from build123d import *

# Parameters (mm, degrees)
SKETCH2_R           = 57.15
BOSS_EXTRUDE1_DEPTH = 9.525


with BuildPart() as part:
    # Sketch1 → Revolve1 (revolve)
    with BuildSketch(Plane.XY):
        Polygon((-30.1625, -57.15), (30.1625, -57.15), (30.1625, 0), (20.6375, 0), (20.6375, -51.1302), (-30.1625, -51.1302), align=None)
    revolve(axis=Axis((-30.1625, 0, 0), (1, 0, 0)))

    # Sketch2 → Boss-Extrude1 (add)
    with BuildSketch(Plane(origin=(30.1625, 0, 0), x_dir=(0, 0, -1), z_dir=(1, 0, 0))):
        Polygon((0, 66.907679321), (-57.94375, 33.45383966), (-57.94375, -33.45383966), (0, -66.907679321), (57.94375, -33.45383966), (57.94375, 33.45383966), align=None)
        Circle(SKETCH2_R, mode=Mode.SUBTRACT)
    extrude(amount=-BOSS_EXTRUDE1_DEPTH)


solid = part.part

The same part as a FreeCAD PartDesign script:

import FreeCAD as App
import Part
import Sketcher
from FreeCAD import Vector
Q = App.Units.Quantity

doc = App.newDocument("Part")
body = doc.addObject("PartDesign::Body", "Body")

# Sketch on XY plane
sketch1 = body.newObject("Sketcher::SketchObject", "Sketch")
sketch1.AttachmentSupport = (doc.getObject("XY_Plane"), [""])
sketch1.MapMode = "FlatFace"
sketch1.addGeometry(Part.LineSegment(Vector(-30, -57, 0), Vector(30, -57, 0)), False)
sketch1.addGeometry(Part.LineSegment(Vector(30, -57, 0), Vector(30, 0, 0)), False)
sketch1.addGeometry(Part.LineSegment(Vector(30, 0, 0), Vector(21, 0, 0)), False)
sketch1.addGeometry(Part.LineSegment(Vector(21, 0, 0), Vector(21, -51, 0)), False)
sketch1.addGeometry(Part.LineSegment(Vector(21, -51, 0), Vector(-30, -51, 0)), False)
sketch1.addGeometry(Part.LineSegment(Vector(-30, -51, 0), Vector(-30, -57, 0)), False)
sketch1.addConstraint(Sketcher.Constraint("Coincident", 0, 2, 1, 1))
sketch1.addConstraint(Sketcher.Constraint("Coincident", 1, 2, 2, 1))
sketch1.addConstraint(Sketcher.Constraint("Coincident", 2, 2, 3, 1))
sketch1.addConstraint(Sketcher.Constraint("Coincident", 3, 2, 4, 1))
sketch1.addConstraint(Sketcher.Constraint("Coincident", 4, 2, 5, 1))
sketch1.addConstraint(Sketcher.Constraint("Coincident", 5, 2, 0, 1))
sketch1.addConstraint(Sketcher.Constraint("Horizontal", 0))
sketch1.addConstraint(Sketcher.Constraint("Vertical", 1))
sketch1.addConstraint(Sketcher.Constraint("Horizontal", 2))
sketch1.addConstraint(Sketcher.Constraint("Vertical", 3))
sketch1.addConstraint(Sketcher.Constraint("Horizontal", 4))
sketch1.addConstraint(Sketcher.Constraint("Vertical", 5))
sketch1.addConstraint(Sketcher.Constraint("PointOnObject", 1, 2, -1))
sketch1.addConstraint(Sketcher.Constraint("DistanceX", 4, 2, 4, 1, Q("2 in")))
sketch1.addConstraint(Sketcher.Constraint("DistanceY", 1, 1, 1, 2, Q("2.25 in")))
sketch1.addConstraint(Sketcher.Constraint("DistanceX", 0, 1, 0, 2, Q("2.375 in")))
sketch1.addConstraint(Sketcher.Constraint("DistanceY", 3, 2, 3, 1, Q("2.013 in")))
sketch1.addConstraint(Sketcher.Constraint("DistanceX", -1, 1, 0, 2, Q("1.1875 in")))
revolution = body.newObject("PartDesign::Revolution", "Revolution")
revolution.Profile = sketch1
revolution.ReferenceAxis = (sketch1, ["H_Axis"])
revolution.Angle = 360

# Sketch on YZ plane
sketch2 = body.newObject("Sketcher::SketchObject", "Sketch001")
sketch2.AttachmentSupport = (doc.getObject("YZ_Plane"), [""])
sketch2.MapMode = "FlatFace"
sketch2.AttachmentOffset = App.Placement(Vector(0, 0, 1.1875 * 25.4), App.Rotation())
sketch2.addGeometry(Part.LineSegment(Vector(67, 0, 0), Vector(33, 58, 0)), False)
sketch2.addGeometry(Part.LineSegment(Vector(33, 58, 0), Vector(-33, 58, 0)), False)
sketch2.addGeometry(Part.LineSegment(Vector(-33, 58, 0), Vector(-67, 0, 0)), False)
sketch2.addGeometry(Part.LineSegment(Vector(-67, 0, 0), Vector(-33, -58, 0)), False)
sketch2.addGeometry(Part.LineSegment(Vector(-33, -58, 0), Vector(33, -58, 0)), False)
sketch2.addGeometry(Part.LineSegment(Vector(33, -58, 0), Vector(67, 0, 0)), False)
sketch2.addGeometry(Part.Circle(Vector(0, 0, 0), Vector(0, 0, 1), 57), False)
sketch2.addConstraint(Sketcher.Constraint("Coincident", 0, 2, 1, 1))
sketch2.addConstraint(Sketcher.Constraint("Coincident", 1, 2, 2, 1))
sketch2.addConstraint(Sketcher.Constraint("Coincident", 2, 2, 3, 1))
sketch2.addConstraint(Sketcher.Constraint("Coincident", 3, 2, 4, 1))
sketch2.addConstraint(Sketcher.Constraint("Coincident", 4, 2, 5, 1))
sketch2.addConstraint(Sketcher.Constraint("Coincident", 5, 2, 0, 1))
sketch2.addConstraint(Sketcher.Constraint("Horizontal", 1))
sketch2.addConstraint(Sketcher.Constraint("Horizontal", 4))
sketch2.addConstraint(Sketcher.Constraint("Coincident", 6, 3, -1, 1))
sketch2.addConstraint(Sketcher.Constraint("Symmetric", 0, 2, 3, 2, -1, 1))
sketch2.addConstraint(Sketcher.Constraint("Symmetric", 2, 2, 5, 2, -1, 1))
sketch2.addConstraint(Sketcher.Constraint("PointOnObject", 2, 2, -1))
sketch2.addConstraint(Sketcher.Constraint("Parallel", 2, 5))
sketch2.addConstraint(Sketcher.Constraint("Vertical", 1, 2, 3, 2))
sketch2.addConstraint(Sketcher.Constraint("Diameter", 6, Q("4.5 in")))
sketch2.addConstraint(Sketcher.Constraint("Angle", 0, Q("120 deg")))
sketch2.addConstraint(Sketcher.Constraint("DistanceY", -1, 1, 0, 2, Q("2.28125 in")))
sketch2.addConstraint(Sketcher.Constraint("DistanceX", 1, 2, 1, 1, Q("66.907679 mm")))
pad1 = body.newObject("PartDesign::Pad", "Pad")
pad1.Profile = sketch2
pad1.Length = Q("0.375 in")
pad1.Reversed = True

doc.recompute()
